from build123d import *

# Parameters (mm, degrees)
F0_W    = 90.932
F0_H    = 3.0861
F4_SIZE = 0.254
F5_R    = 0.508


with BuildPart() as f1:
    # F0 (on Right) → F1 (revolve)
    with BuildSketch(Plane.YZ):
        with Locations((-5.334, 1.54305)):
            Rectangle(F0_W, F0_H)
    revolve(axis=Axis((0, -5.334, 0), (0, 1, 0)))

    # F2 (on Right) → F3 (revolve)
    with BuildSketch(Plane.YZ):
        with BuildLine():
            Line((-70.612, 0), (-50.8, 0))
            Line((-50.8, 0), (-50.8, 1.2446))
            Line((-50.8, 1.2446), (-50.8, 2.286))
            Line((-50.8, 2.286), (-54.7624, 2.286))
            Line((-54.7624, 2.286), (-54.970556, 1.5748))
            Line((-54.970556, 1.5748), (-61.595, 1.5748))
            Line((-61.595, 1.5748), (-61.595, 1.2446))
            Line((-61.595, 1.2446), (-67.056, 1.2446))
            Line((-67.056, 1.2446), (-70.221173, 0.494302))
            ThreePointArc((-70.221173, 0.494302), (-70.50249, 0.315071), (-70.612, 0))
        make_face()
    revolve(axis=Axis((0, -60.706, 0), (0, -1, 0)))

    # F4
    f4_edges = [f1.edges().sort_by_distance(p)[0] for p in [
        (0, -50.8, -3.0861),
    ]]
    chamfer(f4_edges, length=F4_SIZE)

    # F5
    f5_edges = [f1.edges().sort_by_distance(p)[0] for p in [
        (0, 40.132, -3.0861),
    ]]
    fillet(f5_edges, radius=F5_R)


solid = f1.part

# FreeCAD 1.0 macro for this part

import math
import FreeCAD as App
import Part
import Sketcher
Q = App.Units.Quantity


def edges_at(feature, points):
    """Names of the edges that pass closest to the given points."""
    edges = feature.Shape.Edges
    near = lambda p: min(range(len(edges)), key=lambda i: edges[i].distToShape(Part.Vertex(*p))[0])
    return sorted({f"Edge{near(p) + 1}" for p in points})

doc = App.newDocument("Part")
body = doc.addObject("PartDesign::Body", "Body")

# Sketch on YZ plane
sketch1 = doc.addObject("Sketcher::SketchObject", "Sketch")
body.addObject(sketch1)
sketch1.AttachmentSupport = (doc.YZ_Plane, [""])
sketch1.MapMode = "FlatFace"
sketch1.addGeometry([
    Part.LineSegment(App.Vector(-50.8, 3.1, 0), App.Vector(-50.8, 0, 0)),
    Part.LineSegment(App.Vector(-50.8, 0, 0), App.Vector(40.1, 0, 0)),
    Part.LineSegment(App.Vector(40.1, 0, 0), App.Vector(40.1, 3.1, 0)),
    Part.LineSegment(App.Vector(40.1, 3.1, 0), App.Vector(-50.8, 3.1, 0)),
], False)
sketch1.addConstraint([
    Sketcher.Constraint("Coincident", 0, 2, 1, 1),
    Sketcher.Constraint("Coincident", 1, 2, 2, 1),
    Sketcher.Constraint("Coincident", 2, 2, 3, 1),
    Sketcher.Constraint("Coincident", 3, 2, 0, 1),
    Sketcher.Constraint("Vertical", 0),
    Sketcher.Constraint("Horizontal", 1),
    Sketcher.Constraint("Vertical", 2),
    Sketcher.Constraint("Horizontal", 3),
    Sketcher.Constraint("PointOnObject", 0, 2, -1),
    Sketcher.Constraint("DistanceX", 0, 2, -1, 1, Q("2 in")),
    Sketcher.Constraint("DistanceX", 1, 1, 1, 2, Q("3.58 in")),
    Sketcher.Constraint("DistanceY", 0, 2, 0, 1, Q("0.1215 in")),
])
revolution = doc.addObject("PartDesign::Revolution", "Revolution")
body.addObject(revolution)
revolution.Profile = sketch1
revolution.ReferenceAxis = (sketch1, ["H_Axis"])
revolution.Angle = 360

# Sketch on YZ plane
sketch2 = doc.addObject("Sketcher::SketchObject", "Sketch001")
body.addObject(sketch2)
sketch2.AttachmentSupport = (doc.YZ_Plane, [""])
sketch2.MapMode = "FlatFace"
sketch2.addGeometry([
    Part.LineSegment(App.Vector(-70.61, 0, 0), App.Vector(-50.8, 0, 0)),  # 0
    Part.LineSegment(App.Vector(-50.8, 0, 0), App.Vector(-50.8, 2.29, 0)),  # 1
    Part.LineSegment(App.Vector(-50.8, 2.29, 0), App.Vector(-54.76, 2.29, 0)),  # 2
    Part.LineSegment(App.Vector(-54.76, 2.29, 0), App.Vector(-54.97, 1.57, 0)),  # 3
    Part.LineSegment(App.Vector(-54.97, 1.57, 0), App.Vector(-61.59, 1.57, 0)),  # 4
    Part.LineSegment(App.Vector(-61.59, 1.57, 0), App.Vector(-61.59, 1.24, 0)),  # 5
    Part.LineSegment(App.Vector(-61.59, 1.24, 0), App.Vector(-67.06, 1.24, 0)),  # 6
    Part.LineSegment(App.Vector(-67.06, 1.24, 0), App.Vector(-70.22, 0.49, 0)),  # 7
    Part.ArcOfCircle(Part.Circle(App.Vector(-70.1, 0, 0), App.Vector(0, 0, 1), 0.51), math.radians(103), math.radians(180)),  # 8
], False)
sketch2.addConstraint([
    Sketcher.Constraint("Coincident", 0, 2, 1, 1),
    Sketcher.Constraint("Coincident", 1, 2, 2, 1),
    Sketcher.Constraint("Coincident", 2, 2, 3, 1),
    Sketcher.Constraint("Coincident", 3, 2, 4, 1),
    Sketcher.Constraint("Coincident", 4, 2, 5, 1),
    Sketcher.Constraint("Coincident", 5, 2, 6, 1),
    Sketcher.Constraint("Coincident", 6, 2, 7, 1),
    Sketcher.Constraint("Tangent", 7, 2, 8, 1),
    Sketcher.Constraint("Coincident", 8, 2, 0, 1),
    Sketcher.Constraint("Horizontal", 0),
    Sketcher.Constraint("Vertical", 1),
    Sketcher.Constraint("Horizontal", 2),
    Sketcher.Constraint("Horizontal", 4),
    Sketcher.Constraint("Vertical", 5),
    Sketcher.Constraint("Horizontal", 6),
    Sketcher.Constraint("PointOnObject", 8, 3, -1),
    Sketcher.Constraint("PointOnObject", 0, 2, -1),
    Sketcher.Constraint("Radius", 8, Q("0.02 in")),
    Sketcher.Constraint("DistanceX", 0, 2, -1, 1, Q("2 in")),
    Sketcher.Constraint("DistanceX", 0, 1, 0, 2, Q("0.78 in")),
    Sketcher.Constraint("DistanceY", 1, 1, 1, 2, Q("0.09 in")),
    Sketcher.Constraint("DistanceX", 2, 2, 2, 1, Q("0.156 in")),
    Sketcher.Constraint("DistanceX", 6, 2, 6, 1, Q("0.215 in")),
    Sketcher.Constraint("DistanceY", 5, 2, 5, 1, Q("0.013 in")),
    Sketcher.Constraint("DistanceX", 6, 2, -1, 1, Q("2.64 in")),
    Sketcher.Constraint("DistanceY", -1, 1, 3, 2, Q("0.062 in")),
    Sketcher.Constraint("DistanceX", 4, 2, 4, 1, 6.624444),
])
revolution2 = doc.addObject("PartDesign::Revolution", "Revolution001")
body.addObject(revolution2)
revolution2.Profile = sketch2
revolution2.ReferenceAxis = (sketch2, ["H_Axis"])
revolution2.Angle = 360
doc.recompute()

chamfer = doc.addObject("PartDesign::Chamfer", "Chamfer")
body.addObject(chamfer)
chamfer.Base = (revolution2, edges_at(revolution2, [(0, -50.8, -3.086)]))
chamfer.Size = Q("0.01 in")
doc.recompute()

fillet = doc.addObject("PartDesign::Fillet", "Fillet")
body.addObject(fillet)
fillet.Base = (chamfer, edges_at(chamfer, [(0, 40.132, -3.086)]))
fillet.Radius = Q("0.02 in")

doc.recompute()
